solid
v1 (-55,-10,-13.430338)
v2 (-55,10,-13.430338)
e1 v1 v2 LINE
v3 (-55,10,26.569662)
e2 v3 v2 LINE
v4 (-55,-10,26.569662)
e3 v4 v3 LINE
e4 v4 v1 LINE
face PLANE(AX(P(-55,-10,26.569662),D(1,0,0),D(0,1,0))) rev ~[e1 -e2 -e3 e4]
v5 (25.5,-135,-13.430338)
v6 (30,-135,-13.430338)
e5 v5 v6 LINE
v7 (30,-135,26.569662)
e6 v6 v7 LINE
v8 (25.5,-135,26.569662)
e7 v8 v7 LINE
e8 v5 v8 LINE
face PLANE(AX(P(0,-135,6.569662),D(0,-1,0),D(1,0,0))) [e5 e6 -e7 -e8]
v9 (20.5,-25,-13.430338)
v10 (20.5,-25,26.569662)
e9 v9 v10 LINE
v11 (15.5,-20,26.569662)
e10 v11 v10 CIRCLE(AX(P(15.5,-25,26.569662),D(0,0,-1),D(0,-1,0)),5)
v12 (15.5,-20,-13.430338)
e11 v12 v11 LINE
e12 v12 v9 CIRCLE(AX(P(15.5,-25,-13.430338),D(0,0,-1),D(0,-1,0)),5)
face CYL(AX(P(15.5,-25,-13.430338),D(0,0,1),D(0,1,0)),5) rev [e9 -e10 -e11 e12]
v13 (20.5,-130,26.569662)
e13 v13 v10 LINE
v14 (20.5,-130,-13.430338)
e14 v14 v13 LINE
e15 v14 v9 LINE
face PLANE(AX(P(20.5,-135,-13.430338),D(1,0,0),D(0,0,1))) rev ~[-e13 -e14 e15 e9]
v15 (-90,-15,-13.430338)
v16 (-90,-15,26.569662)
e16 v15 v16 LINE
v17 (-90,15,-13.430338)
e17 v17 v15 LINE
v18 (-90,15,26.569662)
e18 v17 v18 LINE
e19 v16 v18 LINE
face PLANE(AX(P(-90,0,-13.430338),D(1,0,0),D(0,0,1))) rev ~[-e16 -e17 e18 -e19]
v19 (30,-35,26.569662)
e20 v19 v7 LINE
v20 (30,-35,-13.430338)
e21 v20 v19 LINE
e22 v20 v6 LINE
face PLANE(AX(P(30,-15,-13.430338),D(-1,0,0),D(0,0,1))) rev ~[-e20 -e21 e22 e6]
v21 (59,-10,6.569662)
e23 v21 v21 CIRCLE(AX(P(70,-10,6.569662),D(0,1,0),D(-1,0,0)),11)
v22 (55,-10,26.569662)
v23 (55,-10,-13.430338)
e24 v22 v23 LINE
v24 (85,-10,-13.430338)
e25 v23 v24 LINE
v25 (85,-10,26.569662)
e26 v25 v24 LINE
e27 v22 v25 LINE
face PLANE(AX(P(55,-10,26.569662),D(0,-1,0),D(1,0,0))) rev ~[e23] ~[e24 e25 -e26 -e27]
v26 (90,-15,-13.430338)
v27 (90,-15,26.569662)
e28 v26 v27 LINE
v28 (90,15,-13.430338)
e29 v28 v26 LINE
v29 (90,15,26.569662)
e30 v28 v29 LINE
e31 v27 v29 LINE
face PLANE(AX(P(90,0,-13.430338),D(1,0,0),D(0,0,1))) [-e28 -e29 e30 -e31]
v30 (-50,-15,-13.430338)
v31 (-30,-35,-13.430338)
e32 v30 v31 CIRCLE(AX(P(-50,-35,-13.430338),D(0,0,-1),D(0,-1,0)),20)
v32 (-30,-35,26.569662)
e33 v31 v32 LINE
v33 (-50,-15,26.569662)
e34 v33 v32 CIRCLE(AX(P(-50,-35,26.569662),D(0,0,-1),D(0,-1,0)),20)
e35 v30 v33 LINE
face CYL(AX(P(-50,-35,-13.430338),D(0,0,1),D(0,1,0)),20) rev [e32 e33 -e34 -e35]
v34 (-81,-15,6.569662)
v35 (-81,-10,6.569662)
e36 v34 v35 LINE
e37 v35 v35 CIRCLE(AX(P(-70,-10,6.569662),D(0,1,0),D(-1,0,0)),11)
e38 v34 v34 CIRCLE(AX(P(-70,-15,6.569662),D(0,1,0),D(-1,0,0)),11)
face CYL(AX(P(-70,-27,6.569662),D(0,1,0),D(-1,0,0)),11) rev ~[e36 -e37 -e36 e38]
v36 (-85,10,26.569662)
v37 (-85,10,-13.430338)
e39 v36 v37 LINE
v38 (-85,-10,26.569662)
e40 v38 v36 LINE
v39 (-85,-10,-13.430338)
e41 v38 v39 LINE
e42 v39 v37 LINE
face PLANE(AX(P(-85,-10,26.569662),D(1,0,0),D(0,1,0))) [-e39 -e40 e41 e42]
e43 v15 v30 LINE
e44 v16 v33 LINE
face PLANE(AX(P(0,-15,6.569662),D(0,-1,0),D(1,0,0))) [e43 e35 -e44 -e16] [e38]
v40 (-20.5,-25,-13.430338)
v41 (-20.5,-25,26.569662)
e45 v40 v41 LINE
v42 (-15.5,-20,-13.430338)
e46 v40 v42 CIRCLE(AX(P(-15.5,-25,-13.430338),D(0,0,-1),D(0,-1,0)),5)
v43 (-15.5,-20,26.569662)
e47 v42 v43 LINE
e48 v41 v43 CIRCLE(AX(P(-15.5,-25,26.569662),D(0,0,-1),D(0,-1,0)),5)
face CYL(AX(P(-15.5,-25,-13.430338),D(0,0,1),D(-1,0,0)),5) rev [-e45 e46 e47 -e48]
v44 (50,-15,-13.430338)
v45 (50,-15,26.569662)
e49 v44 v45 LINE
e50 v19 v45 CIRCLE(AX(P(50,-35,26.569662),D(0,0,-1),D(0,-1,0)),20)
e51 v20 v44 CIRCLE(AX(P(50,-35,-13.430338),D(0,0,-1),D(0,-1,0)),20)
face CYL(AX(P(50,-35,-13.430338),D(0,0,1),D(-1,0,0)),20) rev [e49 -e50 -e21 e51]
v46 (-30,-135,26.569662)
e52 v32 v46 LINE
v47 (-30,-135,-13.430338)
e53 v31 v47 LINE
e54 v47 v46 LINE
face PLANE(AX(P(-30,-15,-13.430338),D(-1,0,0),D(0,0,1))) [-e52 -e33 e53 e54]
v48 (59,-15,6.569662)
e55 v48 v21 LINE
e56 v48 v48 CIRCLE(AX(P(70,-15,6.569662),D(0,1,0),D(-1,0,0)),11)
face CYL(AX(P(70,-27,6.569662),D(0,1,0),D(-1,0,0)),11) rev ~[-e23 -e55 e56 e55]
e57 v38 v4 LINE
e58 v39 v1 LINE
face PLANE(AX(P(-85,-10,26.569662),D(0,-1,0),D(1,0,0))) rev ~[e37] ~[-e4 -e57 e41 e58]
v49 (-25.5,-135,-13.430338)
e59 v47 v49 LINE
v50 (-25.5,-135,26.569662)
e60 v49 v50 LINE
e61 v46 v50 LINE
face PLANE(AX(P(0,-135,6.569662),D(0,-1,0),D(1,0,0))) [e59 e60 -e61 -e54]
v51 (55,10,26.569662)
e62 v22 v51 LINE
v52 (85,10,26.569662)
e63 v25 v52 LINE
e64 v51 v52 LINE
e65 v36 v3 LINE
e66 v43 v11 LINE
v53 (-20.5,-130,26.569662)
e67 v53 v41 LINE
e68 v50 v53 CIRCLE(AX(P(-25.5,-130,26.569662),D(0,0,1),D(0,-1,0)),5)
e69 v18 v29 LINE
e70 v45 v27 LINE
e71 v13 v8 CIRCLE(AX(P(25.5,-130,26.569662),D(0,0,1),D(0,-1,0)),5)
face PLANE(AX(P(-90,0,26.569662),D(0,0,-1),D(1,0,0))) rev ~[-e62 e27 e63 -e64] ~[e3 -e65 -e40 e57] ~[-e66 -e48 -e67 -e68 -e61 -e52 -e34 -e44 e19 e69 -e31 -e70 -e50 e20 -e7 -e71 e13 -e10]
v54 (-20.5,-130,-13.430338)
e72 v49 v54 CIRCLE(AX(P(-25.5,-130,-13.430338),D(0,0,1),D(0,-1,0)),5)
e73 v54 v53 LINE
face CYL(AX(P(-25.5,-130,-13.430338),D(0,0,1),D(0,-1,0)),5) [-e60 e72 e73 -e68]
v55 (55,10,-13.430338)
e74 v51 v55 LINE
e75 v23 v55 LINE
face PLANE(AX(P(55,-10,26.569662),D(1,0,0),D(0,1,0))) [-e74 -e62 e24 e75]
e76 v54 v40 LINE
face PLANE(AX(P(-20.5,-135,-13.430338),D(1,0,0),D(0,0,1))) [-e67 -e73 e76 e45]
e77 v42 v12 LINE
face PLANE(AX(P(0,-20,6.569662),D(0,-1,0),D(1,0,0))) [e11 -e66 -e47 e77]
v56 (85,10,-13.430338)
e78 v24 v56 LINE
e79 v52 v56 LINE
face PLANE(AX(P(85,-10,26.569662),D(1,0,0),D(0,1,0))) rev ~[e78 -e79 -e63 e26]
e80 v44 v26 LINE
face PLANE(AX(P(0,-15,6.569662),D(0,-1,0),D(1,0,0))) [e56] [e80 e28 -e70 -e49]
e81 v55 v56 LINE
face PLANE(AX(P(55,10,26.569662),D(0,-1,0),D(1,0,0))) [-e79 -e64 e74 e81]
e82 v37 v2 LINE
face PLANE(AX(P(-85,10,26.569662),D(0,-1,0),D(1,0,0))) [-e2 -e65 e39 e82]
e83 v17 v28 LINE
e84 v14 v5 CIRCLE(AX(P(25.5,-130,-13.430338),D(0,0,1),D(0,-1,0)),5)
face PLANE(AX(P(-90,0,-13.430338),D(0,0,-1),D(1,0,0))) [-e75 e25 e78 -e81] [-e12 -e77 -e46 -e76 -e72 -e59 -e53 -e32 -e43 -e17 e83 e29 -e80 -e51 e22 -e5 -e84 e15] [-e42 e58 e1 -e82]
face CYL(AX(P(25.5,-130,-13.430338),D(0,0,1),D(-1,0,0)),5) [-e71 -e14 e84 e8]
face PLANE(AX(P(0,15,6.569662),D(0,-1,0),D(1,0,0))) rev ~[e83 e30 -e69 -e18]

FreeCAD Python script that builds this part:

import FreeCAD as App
import Part
import Sketcher

V = App.Vector
Q = App.Units.Quantity


def edges_at(feature, points):
    """Names of the edges that pass closest to the given points."""
    edges = feature.Shape.Edges
    near = lambda p: min(range(len(edges)), key=lambda i: edges[i].distToShape(Part.Vertex(*p))[0])
    return sorted({f"Edge{near(p) + 1}" for p in points})

doc = App.newDocument("Part")
body = doc.addObject("PartDesign::Body", "Body")

sketch1 = body.newObject("Sketcher::SketchObject", "Sketch")
sketch1.AttachmentSupport = (doc.getObject("XZ_Plane"), [""])
sketch1.MapMode = "FlatFace"
sketch1.addGeometry(Part.LineSegment(V(-90, 27, 0), V(-90, -13, 0)), False)
sketch1.addGeometry(Part.LineSegment(V(-90, -13, 0), V(90, -13, 0)), False)
sketch1.addGeometry(Part.LineSegment(V(90, -13, 0), V(90, 27, 0)), False)
sketch1.addGeometry(Part.LineSegment(V(90, 27, 0), V(-90, 27, 0)), False)
sketch1.addConstraint(Sketcher.Constraint("Coincident", 0, 2, 1, 1))
sketch1.addConstraint(Sketcher.Constraint("Coincident", 1, 2, 2, 1))
sketch1.addConstraint(Sketcher.Constraint("Coincident", 2, 2, 3, 1))
sketch1.addConstraint(Sketcher.Constraint("Coincident", 3, 2, 0, 1))
sketch1.addConstraint(Sketcher.Constraint("Vertical", 0))
sketch1.addConstraint(Sketcher.Constraint("Horizontal", 1))
sketch1.addConstraint(Sketcher.Constraint("Vertical", 2))
sketch1.addConstraint(Sketcher.Constraint("Horizontal", 3))
sketch1.addConstraint(Sketcher.Constraint("DistanceX", 1, 1, 1, 2, Q("180 mm")))
sketch1.addConstraint(Sketcher.Constraint("DistanceY", 0, 2, 0, 1, Q("40 mm")))
sketch1.addConstraint(Sketcher.Constraint("DistanceX", 0, 2, -1, 1, Q("90 mm")))
sketch1.addConstraint(Sketcher.Constraint("DistanceY", 0, 2, -1, 1, Q("13.430338 mm")))
pad1 = body.newObject("PartDesign::Pad", "Pad")
pad1.Profile = sketch1
pad1.Length = 30
pad1.Midplane = True

sketch2 = body.newObject("Sketcher::SketchObject", "Sketch001")
sketch2.AttachmentSupport = (doc.getObject("XZ_Plane"), [""])
sketch2.MapMode = "FlatFace"
sketch2.AttachmentOffset = App.Placement(V(0, 0, 15), App.Rotation())
sketch2.addGeometry(Part.LineSegment(V(-30, 27, 0), V(-30, -13, 0)), False)
sketch2.addGeometry(Part.LineSegment(V(-30, -13, 0), V(30, -13, 0)), False)
sketch2.addGeometry(Part.LineSegment(V(30, -13, 0), V(30, 27, 0)), False)
sketch2.addGeometry(Part.LineSegment(V(30, 27, 0), V(-30, 27, 0)), False)
sketch2.addConstraint(Sketcher.Constraint("Coincident", 0, 2, 1, 1))
sketch2.addConstraint(Sketcher.Constraint("Coincident", 1, 2, 2, 1))
sketch2.addConstraint(Sketcher.Constraint("Coincident", 2, 2, 3, 1))
sketch2.addConstraint(Sketcher.Constraint("Coincident", 3, 2, 0, 1))
sketch2.addConstraint(Sketcher.Constraint("Vertical", 0))
sketch2.addConstraint(Sketcher.Constraint("Horizontal", 1))
sketch2.addConstraint(Sketcher.Constraint("Vertical", 2))
sketch2.addConstraint(Sketcher.Constraint("Horizontal", 3))
sketch2.addConstraint(Sketcher.Constraint("DistanceX", 1, 1, 1, 2, Q("60 mm")))
sketch2.addConstraint(Sketcher.Constraint("DistanceY", 0, 2, 0, 1, Q("40 mm")))
sketch2.addConstraint(Sketcher.Constraint("DistanceX", 0, 2, -1, 1, Q("30 mm")))
sketch2.addConstraint(Sketcher.Constraint("DistanceY", 0, 2, -1, 1, Q("13.430338 mm")))
pad2 = body.newObject("PartDesign::Pad", "Pad001")
pad2.Profile = sketch2
pad2.Length = 120

sketch3 = body.newObject("Sketcher::SketchObject", "Sketch002")
sketch3.AttachmentSupport = (doc.getObject("XZ_Plane"), [""])
sketch3.MapMode = "FlatFace"
sketch3.AttachmentOffset = App.Placement(V(0, 0, 135), App.Rotation())
sketch3.addGeometry(Part.LineSegment(V(-20, 27, 0), V(-20, -13, 0)), False)
sketch3.addGeometry(Part.LineSegment(V(-20, -13, 0), V(20, -13, 0)), False)
sketch3.addGeometry(Part.LineSegment(V(20, -13, 0), V(20, 27, 0)), False)
sketch3.addGeometry(Part.LineSegment(V(20, 27, 0), V(-20, 27, 0)), False)
sketch3.addConstraint(Sketcher.Constraint("Coincident", 0, 2, 1, 1))
sketch3.addConstraint(Sketcher.Constraint("Coincident", 1, 2, 2, 1))
sketch3.addConstraint(Sketcher.Constraint("Coincident", 2, 2, 3, 1))
sketch3.addConstraint(Sketcher.Constraint("Coincident", 3, 2, 0, 1))
sketch3.addConstraint(Sketcher.Constraint("Vertical", 0))
sketch3.addConstraint(Sketcher.Constraint("Horizontal", 1))
sketch3.addConstraint(Sketcher.Constraint("Vertical", 2))
sketch3.addConstraint(Sketcher.Constraint("Horizontal", 3))
sketch3.addConstraint(Sketcher.Constraint("DistanceX", 1, 1, 1, 2, Q("41 mm")))
sketch3.addConstraint(Sketcher.Constraint("DistanceY", 0, 2, 0, 1, Q("40 mm")))
sketch3.addConstraint(Sketcher.Constraint("DistanceX", 0, 2, -1, 1, Q("20.5 mm")))
sketch3.addConstraint(Sketcher.Constraint("DistanceY", 0, 2, -1, 1, Q("13.430338 mm")))
pocket1 = body.newObject("PartDesign::Pocket", "Pocket")
pocket1.Profile = sketch3
pocket1.Length = 115
doc.recompute()

fillet = body.newObject("PartDesign::Fillet", "Fillet")
fillet.Base = (pocket1, edges_at(pocket1, [(-30, -15, 6.57), (30, -15, 6.57)]))
fillet.Radius = 20
doc.recompute()

fillet2 = body.newObject("PartDesign::Fillet", "Fillet001")
fillet2.Base = (fillet, edges_at(fillet, [
    (-20.5, -20, 6.57),
    (20.5, -20, 6.57),
    (-20.5, -135, 6.57),
    (20.5, -135, 6.57),
]))
fillet2.Radius = 5

sketch4 = body.newObject("Sketcher::SketchObject", "Sketch003")
sketch4.AttachmentSupport = (doc.getObject("XY_Plane"), [""])
sketch4.MapMode = "FlatFace"
sketch4.AttachmentOffset = App.Placement(V(0, 0, 26.569662), App.Rotation())
sketch4.addGeometry(Part.LineSegment(V(-85, 10, 0), V(-85, -10, 0)), False)
sketch4.addGeometry(Part.LineSegment(V(-85, -10, 0), V(-55, -10, 0)), False)
sketch4.addGeometry(Part.LineSegment(V(-55, -10, 0), V(-55, 10, 0)), False)
sketch4.addGeometry(Part.LineSegment(V(-55, 10, 0), V(-85, 10, 0)), False)
sketch4.addConstraint(Sketcher.Constraint("Coincident", 0, 2, 1, 1))
sketch4.addConstraint(Sketcher.Constraint("Coincident", 1, 2, 2, 1))
sketch4.addConstraint(Sketcher.Constraint("Coincident", 2, 2, 3, 1))
sketch4.addConstraint(Sketcher.Constraint("Coincident", 3, 2, 0, 1))
sketch4.addConstraint(Sketcher.Constraint("Vertical", 0))
sketch4.addConstraint(Sketcher.Constraint("Horizontal", 1))
sketch4.addConstraint(Sketcher.Constraint("Vertical", 2))
sketch4.addConstraint(Sketcher.Constraint("Horizontal", 3))
sketch4.addConstraint(Sketcher.Constraint("DistanceX", 1, 1, 1, 2, Q("30 mm")))
sketch4.addConstraint(Sketcher.Constraint("DistanceY", 0, 2, 0, 1, Q("20 mm")))
sketch4.addConstraint(Sketcher.Constraint("DistanceX", 0, 2, -1, 1, Q("85 mm")))
sketch4.addConstraint(Sketcher.Constraint("DistanceY", 0, 2, -1, 1, Q("10 mm")))
pocket2 = body.newObject("PartDesign::Pocket", "Pocket001")
pocket2.Profile = sketch4
pocket2.Length = 40

sketch5 = body.newObject("Sketcher::SketchObject", "Sketch004")
sketch5.AttachmentSupport = (doc.getObject("XY_Plane"), [""])
sketch5.MapMode = "FlatFace"
sketch5.AttachmentOffset = App.Placement(V(0, 0, 26.569662), App.Rotation())
sketch5.addGeometry(Part.LineSegment(V(55, 10, 0), V(55, -10, 0)), False)
sketch5.addGeometry(Part.LineSegment(V(55, -10, 0), V(85, -10, 0)), False)
sketch5.addGeometry(Part.LineSegment(V(85, -10, 0), V(85, 10, 0)), False)
sketch5.addGeometry(Part.LineSegment(V(85, 10, 0), V(55, 10, 0)), False)
sketch5.addConstraint(Sketcher.Constraint("Coincident", 0, 2, 1, 1))
sketch5.addConstraint(Sketcher.Constraint("Coincident", 1, 2, 2, 1))
sketch5.addConstraint(Sketcher.Constraint("Coincident", 2, 2, 3, 1))
sketch5.addConstraint(Sketcher.Constraint("Coincident", 3, 2, 0, 1))
sketch5.addConstraint(Sketcher.Constraint("Vertical", 0))
sketch5.addConstraint(Sketcher.Constraint("Horizontal", 1))
sketch5.addConstraint(Sketcher.Constraint("Vertical", 2))
sketch5.addConstraint(Sketcher.Constraint("Horizontal", 3))
sketch5.addConstraint(Sketcher.Constraint("DistanceX", 1, 1, 1, 2, Q("30 mm")))
sketch5.addConstraint(Sketcher.Constraint("DistanceY", 0, 2, 0, 1, Q("20 mm")))
sketch5.addConstraint(Sketcher.Constraint("DistanceX", -1, 1, 0, 2, Q("55 mm")))
sketch5.addConstraint(Sketcher.Constraint("DistanceY", 0, 2, -1, 1, Q("10 mm")))
pocket3 = body.newObject("PartDesign::Pocket", "Pocket002")
pocket3.Profile = sketch5
pocket3.Length = 40

sketch6 = body.newObject("Sketcher::SketchObject", "Sketch005")
sketch6.AttachmentSupport = (doc.getObject("XZ_Plane"), [""])
sketch6.MapMode = "FlatFace"
sketch6.AttachmentOffset = App.Placement(V(0, 0, 15), App.Rotation())
sketch6.addGeometry(Part.Circle(V(-70, 7, 0), V(0, 0, 1), 11), False)
sketch6.addConstraint(Sketcher.Constraint("Diameter", 0, Q("22 mm")))
sketch6.addConstraint(Sketcher.Constraint("DistanceX", 0, 3, -1, 1, Q("70 mm")))
sketch6.addConstraint(Sketcher.Constraint("DistanceY", -1, 1, 0, 3, Q("6.569662 mm")))
doc.recompute()
hole = body.newObject("PartDesign::Hole", "Hole")
hole.Profile = sketch6
hole.ThreadType = "None"
hole.Diameter = 22
hole.DepthType = "Dimension"
hole.Depth = 12
hole.DrillPoint = "Angled"
hole.DrillPointAngle = 118

sketch7 = body.newObject("Sketcher::SketchObject", "Sketch006")
sketch7.AttachmentSupport = (doc.getObject("XZ_Plane"), [""])
sketch7.MapMode = "FlatFace"
sketch7.AttachmentOffset = App.Placement(V(0, 0, 15), App.Rotation())
sketch7.addGeometry(Part.Circle(V(70, 7, 0), V(0, 0, 1), 11), False)
sketch7.addConstraint(Sketcher.Constraint("Diameter", 0, Q("22 mm")))
sketch7.addConstraint(Sketcher.Constraint("DistanceX", -1, 1, 0, 3, Q("70 mm")))
sketch7.addConstraint(Sketcher.Constraint("DistanceY", -1, 1, 0, 3, Q("6.569662 mm")))
doc.recompute()
hole2 = body.newObject("PartDesign::Hole", "Hole001")
hole2.Profile = sketch7
hole2.ThreadType = "None"
hole2.Diameter = 22
hole2.DepthType = "Dimension"
hole2.Depth = 12
hole2.DrillPoint = "Angled"
hole2.DrillPointAngle = 118

doc.recompute()
